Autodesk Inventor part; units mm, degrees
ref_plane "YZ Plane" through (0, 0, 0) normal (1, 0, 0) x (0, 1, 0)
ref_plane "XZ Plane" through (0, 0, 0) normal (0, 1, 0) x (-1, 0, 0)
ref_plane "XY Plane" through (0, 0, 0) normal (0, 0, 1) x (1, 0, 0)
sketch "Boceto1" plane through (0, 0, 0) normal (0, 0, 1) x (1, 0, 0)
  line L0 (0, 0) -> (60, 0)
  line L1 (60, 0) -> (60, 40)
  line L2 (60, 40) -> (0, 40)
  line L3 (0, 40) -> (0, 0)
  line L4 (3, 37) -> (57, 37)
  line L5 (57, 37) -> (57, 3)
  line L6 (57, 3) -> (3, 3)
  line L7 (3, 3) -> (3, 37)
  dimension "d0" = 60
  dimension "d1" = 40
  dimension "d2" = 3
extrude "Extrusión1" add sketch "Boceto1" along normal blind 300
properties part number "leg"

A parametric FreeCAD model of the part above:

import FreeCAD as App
import Part
import Sketcher
from FreeCAD import Vector
Q = App.Units.Quantity


def add_polygon(sketch, points):
    """Adds a closed chain of lines whose ends are joined by coincident constraints."""
    first, n = sketch.GeometryCount, len(points)
    for a, b in zip(points, points[1:] + points[:1]):
        sketch.addGeometry(Part.LineSegment(App.Vector(*a, 0), App.Vector(*b, 0)), False)
    for i in range(n):
        sketch.addConstraint(Sketcher.Constraint("Coincident", first + i, 2, first + (i + 1) % n, 1))

doc = App.newDocument("Part")
body = doc.addObject("PartDesign::Body", "Body")

sketch1 = doc.addObject("Sketcher::SketchObject", "Sketch")
body.addObject(sketch1)
sketch1.AttachmentSupport = (doc.XY_Plane, [""])
sketch1.MapMode = "FlatFace"
add_polygon(sketch1, [(0, 40), (0, 0), (60, 0), (60, 40)])
add_polygon(sketch1, [(3, 3), (3, 37), (57, 37), (57, 3)])
sketch1.addConstraint([
    Sketcher.Constraint("Vertical", 0),
    Sketcher.Constraint("Horizontal", 1),
    Sketcher.Constraint("Vertical", 2),
    Sketcher.Constraint("Horizontal", 3),
    Sketcher.Constraint("Vertical", 4),
    Sketcher.Constraint("Horizontal", 5),
    Sketcher.Constraint("Vertical", 6),
    Sketcher.Constraint("Horizontal", 7),
    Sketcher.Constraint("Coincident", 0, 2, -1, 1),
    Sketcher.Constraint("DistanceX", 1, 1, 1, 2, Q("60 mm")),
    Sketcher.Constraint("DistanceY", 0, 2, 0, 1, Q("40 mm")),
    Sketcher.Constraint("DistanceX", -1, 1, 4, 2, Q("3 mm")),
    Sketcher.Constraint("DistanceY", -1, 1, 6, 2, Q("3 mm")),
    Sketcher.Constraint("DistanceY", 4, 2, 3, 2, Q("3 mm")),
    Sketcher.Constraint("DistanceX", 5, 2, 2, 2, Q("3 mm")),
])
pad1 = doc.addObject("PartDesign::Pad", "Pad")
body.addObject(pad1)
pad1.Profile = sketch1
pad1.Length = 300

doc.recompute()
